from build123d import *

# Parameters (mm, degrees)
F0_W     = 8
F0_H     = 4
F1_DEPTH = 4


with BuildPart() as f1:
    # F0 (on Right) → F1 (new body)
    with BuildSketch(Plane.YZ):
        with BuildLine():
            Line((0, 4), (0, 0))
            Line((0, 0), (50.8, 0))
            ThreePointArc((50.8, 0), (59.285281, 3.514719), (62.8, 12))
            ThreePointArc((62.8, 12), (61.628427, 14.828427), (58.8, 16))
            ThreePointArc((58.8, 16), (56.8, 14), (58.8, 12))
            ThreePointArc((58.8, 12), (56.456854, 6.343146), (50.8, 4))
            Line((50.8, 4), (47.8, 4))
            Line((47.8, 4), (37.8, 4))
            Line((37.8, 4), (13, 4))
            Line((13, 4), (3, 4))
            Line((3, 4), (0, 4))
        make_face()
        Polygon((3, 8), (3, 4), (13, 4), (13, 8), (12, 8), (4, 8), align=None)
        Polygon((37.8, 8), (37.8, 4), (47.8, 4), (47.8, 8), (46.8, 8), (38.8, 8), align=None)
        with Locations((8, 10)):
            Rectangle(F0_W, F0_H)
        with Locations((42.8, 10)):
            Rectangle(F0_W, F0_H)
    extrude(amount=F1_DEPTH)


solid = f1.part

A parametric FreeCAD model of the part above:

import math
import FreeCAD as App
import Part
import Sketcher
from FreeCAD import Vector
Q = App.Units.Quantity

doc = App.newDocument("Part")
params = doc.addObject("Spreadsheet::Sheet", "Params")
for row, (alias, value) in enumerate([
    ("sketch1_radius", "12.000001 mm"),
    ("sketch1_width", "3 mm"),
    ("sketch1_width2", "1 mm"),
    ("sketch1_width3", "8 mm"),
    ("sketch1_width4", "50.8 mm"),
    ("pad1_length", "4 mm"),
], start=1):
    params.set(f"A{row}", alias)
    params.set(f"B{row}", "=" + value)
    params.setAlias(f"B{row}", alias)

body = doc.addObject("PartDesign::Body", "Body")

sketch1 = body.newObject("Sketcher::SketchObject", "Sketch")
sketch1.AttachmentSupport = (doc.getObject("YZ_Plane"), [""])
sketch1.MapMode = "FlatFace"
sketch1.addGeometry([
    Part.LineSegment(Vector(0, 4, 0), Vector(0, 0, 0)),
    Part.LineSegment(Vector(0, 0, 0), Vector(50.8, 0, 0)),
    Part.ArcOfCircle(Part.Circle(Vector(50.8, 12, 0), Vector(0, 0, 1), 12), math.radians(-90), math.radians(0)),
    Part.ArcOfCircle(Part.Circle(Vector(58.8, 12, 0), Vector(0, 0, 1), 4), math.radians(0), math.radians(90)),
    Part.ArcOfCircle(Part.Circle(Vector(58.8, 14, 0), Vector(0, 0, 1), 2), math.radians(90), math.radians(270)),
    Part.ArcOfCircle(Part.Circle(Vector(50.8, 12, 0), Vector(0, 0, 1), 8), math.radians(-90), math.radians(0)),
    Part.LineSegment(Vector(50.8, 4, 0), Vector(47.8, 4, 0)),
    Part.LineSegment(Vector(47.8, 4, 0), Vector(47.8, 8, 0)),
    Part.LineSegment(Vector(47.8, 8, 0), Vector(46.8, 8, 0)),
    Part.LineSegment(Vector(46.8, 8, 0), Vector(46.8, 12, 0)),
    Part.LineSegment(Vector(46.8, 12, 0), Vector(38.8, 12, 0)),
    Part.LineSegment(Vector(38.8, 12, 0), Vector(38.8, 8, 0)),
    Part.LineSegment(Vector(38.8, 8, 0), Vector(37.8, 8, 0)),
    Part.LineSegment(Vector(37.8, 8, 0), Vector(37.8, 4, 0)),
    Part.LineSegment(Vector(37.8, 4, 0), Vector(13, 4, 0)),
    Part.LineSegment(Vector(13, 4, 0), Vector(13, 8, 0)),
    Part.LineSegment(Vector(13, 8, 0), Vector(12, 8, 0)),
    Part.LineSegment(Vector(12, 8, 0), Vector(12, 12, 0)),
    Part.LineSegment(Vector(12, 12, 0), Vector(4, 12, 0)),
    Part.LineSegment(Vector(4, 12, 0), Vector(4, 8, 0)),
    Part.LineSegment(Vector(4, 8, 0), Vector(3, 8, 0)),
    Part.LineSegment(Vector(3, 8, 0), Vector(3, 4, 0)),
    Part.LineSegment(Vector(3, 4, 0), Vector(0, 4, 0)),
], False)
sketch1.addConstraint([
    Sketcher.Constraint("Coincident", 0, 2, 1, 1),
    Sketcher.Constraint("Tangent", 1, 2, 2, 1),
    Sketcher.Constraint("Tangent", 2, 2, 3, 1),
    Sketcher.Constraint("Tangent", 3, 2, 4, 1),
    Sketcher.Constraint("Coincident", 4, 2, 5, 2),
    Sketcher.Constraint("Tangent", 5, 1, 6, 1),
    Sketcher.Constraint("Coincident", 6, 2, 7, 1),
    Sketcher.Constraint("Coincident", 7, 2, 8, 1),
    Sketcher.Constraint("Coincident", 8, 2, 9, 1),
    Sketcher.Constraint("Coincident", 9, 2, 10, 1),
    Sketcher.Constraint("Coincident", 10, 2, 11, 1),
    Sketcher.Constraint("Coincident", 11, 2, 12, 1),
    Sketcher.Constraint("Coincident", 12, 2, 13, 1),
    Sketcher.Constraint("Coincident", 13, 2, 14, 1),
    Sketcher.Constraint("Coincident", 14, 2, 15, 1),
    Sketcher.Constraint("Coincident", 15, 2, 16, 1),
    Sketcher.Constraint("Coincident", 16, 2, 17, 1),
    Sketcher.Constraint("Coincident", 17, 2, 18, 1),
    Sketcher.Constraint("Coincident", 18, 2, 19, 1),
    Sketcher.Constraint("Coincident", 19, 2, 20, 1),
    Sketcher.Constraint("Coincident", 20, 2, 21, 1),
    Sketcher.Constraint("Coincident", 21, 2, 22, 1),
    Sketcher.Constraint("Coincident", 22, 2, 0, 1),
    Sketcher.Constraint("Vertical", 0),
    Sketcher.Constraint("Horizontal", 1),
    Sketcher.Constraint("Horizontal", 6),
    Sketcher.Constraint("Vertical", 7),
    Sketcher.Constraint("Horizontal", 8),
    Sketcher.Constraint("Vertical", 9),
    Sketcher.Constraint("Horizontal", 10),
    Sketcher.Constraint("Vertical", 11),
    Sketcher.Constraint("Horizontal", 12),
    Sketcher.Constraint("Vertical", 13),
    Sketcher.Constraint("Horizontal", 14),
    Sketcher.Constraint("Vertical", 15),
    Sketcher.Constraint("Horizontal", 16),
    Sketcher.Constraint("Vertical", 17),
    Sketcher.Constraint("Horizontal", 18),
    Sketcher.Constraint("Vertical", 19),
    Sketcher.Constraint("Horizontal", 20),
    Sketcher.Constraint("Vertical", 21),
    Sketcher.Constraint("Horizontal", 22),
    Sketcher.Constraint("Coincident", 0, 2, -1, 1),
    Sketcher.Constraint("Coincident", 5, 3, 2, 3),
    Sketcher.Constraint("Coincident", 4, 2, 3, 3),
    Sketcher.Constraint("Horizontal", 2, 3, 3, 3),
    Sketcher.Constraint("Horizontal", 4, 2, 9, 2),
    Sketcher.Constraint("Horizontal", 8, 2, 11, 2),
    Sketcher.Constraint("Horizontal", 6, 2, 13, 2),
    Sketcher.Constraint("Horizontal", 12, 2, 15, 2),
    Sketcher.Constraint("Horizontal", 10, 2, 17, 2),
    Sketcher.Constraint("Horizontal", 16, 2, 19, 2),
    Sketcher.Constraint("Horizontal", 14, 2, 21, 2),
    Sketcher.Constraint("Vertical", 3, 3, 4, 3),
    Sketcher.Constraint("Equal", 8, 12),
    Sketcher.Constraint("Equal", 12, 16),
    Sketcher.Constraint("Equal", 10, 18),
    Sketcher.Constraint("Equal", 16, 20),
    Sketcher.Constraint("Equal", 6, 22),
    Sketcher.Constraint("Equal", 0, 7),
    Sketcher.Constraint("Equal", 7, 9),
    Sketcher.Constraint("Radius", 2, Q("12.000001 mm")),
    Sketcher.Constraint("DistanceX", 6, 2, 6, 1, Q("3 mm")),
    Sketcher.Constraint("DistanceX", 8, 2, 8, 1, Q("1 mm")),
    Sketcher.Constraint("DistanceX", 10, 2, 10, 1, Q("8 mm")),
    Sketcher.Constraint("DistanceX", 1, 1, 1, 2, Q("50.8 mm")),
])
sketch1.setExpression("Constraints[61]", "Params.sketch1_radius")
sketch1.setExpression("Constraints[62]", "Params.sketch1_width")
sketch1.setExpression("Constraints[63]", "Params.sketch1_width2")
sketch1.setExpression("Constraints[64]", "Params.sketch1_width3")
sketch1.setExpression("Constraints[65]", "Params.sketch1_width4")
pad1 = body.newObject("PartDesign::Pad", "Pad")
pad1.Profile = sketch1
pad1.setExpression("Length", "Params.pad1_length")

doc.recompute()
